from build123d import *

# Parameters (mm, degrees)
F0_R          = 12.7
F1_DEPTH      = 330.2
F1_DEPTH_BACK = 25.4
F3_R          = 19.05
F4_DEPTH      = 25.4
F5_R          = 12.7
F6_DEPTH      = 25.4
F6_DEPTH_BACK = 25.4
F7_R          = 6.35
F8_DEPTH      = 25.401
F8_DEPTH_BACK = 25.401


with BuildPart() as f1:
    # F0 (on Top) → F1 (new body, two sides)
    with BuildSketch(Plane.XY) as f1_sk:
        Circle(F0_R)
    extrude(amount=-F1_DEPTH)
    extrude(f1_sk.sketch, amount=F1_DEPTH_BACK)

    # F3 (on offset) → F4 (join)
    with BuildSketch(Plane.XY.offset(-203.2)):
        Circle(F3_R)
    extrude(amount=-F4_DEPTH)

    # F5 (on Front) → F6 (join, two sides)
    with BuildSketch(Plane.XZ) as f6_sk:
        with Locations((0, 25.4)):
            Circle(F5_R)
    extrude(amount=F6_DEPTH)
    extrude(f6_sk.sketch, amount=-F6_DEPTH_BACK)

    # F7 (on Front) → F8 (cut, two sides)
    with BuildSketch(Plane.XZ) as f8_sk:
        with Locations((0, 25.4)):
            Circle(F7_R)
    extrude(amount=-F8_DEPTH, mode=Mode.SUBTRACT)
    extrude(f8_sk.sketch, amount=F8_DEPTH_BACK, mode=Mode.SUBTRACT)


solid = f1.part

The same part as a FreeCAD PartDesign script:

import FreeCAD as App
import Part
import Sketcher

V = App.Vector
Q = App.Units.Quantity

doc = App.newDocument("Part")
body = doc.addObject("PartDesign::Body", "Body")

# Sketch on XY plane
sketch1 = doc.addObject("Sketcher::SketchObject", "Sketch")
body.addObject(sketch1)
sketch1.AttachmentSupport = (doc.XY_Plane, [""])
sketch1.MapMode = "FlatFace"
sketch1.addGeometry(Part.Circle(V(0, 0, 0), V(0, 0, 1), 12.7), False)
sketch1.addConstraint([
    Sketcher.Constraint("Coincident", 0, 3, -1, 1),
    Sketcher.Constraint("Diameter", 0, Q("1 in")),
])
pad1 = doc.addObject("PartDesign::Pad", "Pad")
body.addObject(pad1)
pad1.Profile = sketch1
pad1.Type = "TwoLengths"
pad1.Length = Q("13 in")
pad1.Length2 = Q("1 in")
pad1.Reversed = True

# Sketch on XY plane
sketch2 = doc.addObject("Sketcher::SketchObject", "Sketch001")
body.addObject(sketch2)
sketch2.AttachmentSupport = (doc.XY_Plane, [""])
sketch2.MapMode = "FlatFace"
sketch2.AttachmentOffset = App.Placement(V(0, 0, -8 * 25.4), App.Rotation())
sketch2.addGeometry(Part.Circle(V(0, 0, 0), V(0, 0, 1), 19.05), False)
sketch2.addConstraint([
    Sketcher.Constraint("Coincident", 0, 3, -1, 1),
    Sketcher.Constraint("Diameter", 0, Q("1.5 in")),
])
pad2 = doc.addObject("PartDesign::Pad", "Pad001")
body.addObject(pad2)
pad2.Profile = sketch2
pad2.Length = Q("1 in")
pad2.Reversed = True

# Sketch on XZ plane
sketch3 = doc.addObject("Sketcher::SketchObject", "Sketch002")
body.addObject(sketch3)
sketch3.AttachmentSupport = (doc.XZ_Plane, [""])
sketch3.MapMode = "FlatFace"
sketch3.addGeometry(Part.Circle(V(0, 25.4, 0), V(0, 0, 1), 12.7), False)
sketch3.addConstraint([
    Sketcher.Constraint("PointOnObject", 0, 3, -2),
    Sketcher.Constraint("Diameter", 0, Q("1 in")),
    Sketcher.Constraint("DistanceY", -1, 1, 0, 3, Q("1 in")),
])
pad3 = doc.addObject("PartDesign::Pad", "Pad002")
body.addObject(pad3)
pad3.Profile = sketch3
pad3.Type = "TwoLengths"
pad3.Length = Q("1 in")
pad3.Length2 = Q("1 in")

# Sketch on XZ plane
sketch4 = doc.addObject("Sketcher::SketchObject", "Sketch003")
body.addObject(sketch4)
sketch4.AttachmentSupport = (doc.XZ_Plane, [""])
sketch4.MapMode = "FlatFace"
sketch4.addGeometry(Part.Circle(V(0, 25.4, 0), V(0, 0, 1), 6.35), False)
sketch4.addConstraint([
    Sketcher.Constraint("PointOnObject", 0, 3, -2),
    Sketcher.Constraint("Diameter", 0, Q("0.5 in")),
    Sketcher.Constraint("DistanceY", -1, 1, 0, 3, Q("1 in")),
])
pocket1 = doc.addObject("PartDesign::Pocket", "Pocket")
body.addObject(pocket1)
pocket1.Profile = sketch4
pocket1.Type = "ThroughAll"
pocket1.Midplane = True

doc.recompute()
